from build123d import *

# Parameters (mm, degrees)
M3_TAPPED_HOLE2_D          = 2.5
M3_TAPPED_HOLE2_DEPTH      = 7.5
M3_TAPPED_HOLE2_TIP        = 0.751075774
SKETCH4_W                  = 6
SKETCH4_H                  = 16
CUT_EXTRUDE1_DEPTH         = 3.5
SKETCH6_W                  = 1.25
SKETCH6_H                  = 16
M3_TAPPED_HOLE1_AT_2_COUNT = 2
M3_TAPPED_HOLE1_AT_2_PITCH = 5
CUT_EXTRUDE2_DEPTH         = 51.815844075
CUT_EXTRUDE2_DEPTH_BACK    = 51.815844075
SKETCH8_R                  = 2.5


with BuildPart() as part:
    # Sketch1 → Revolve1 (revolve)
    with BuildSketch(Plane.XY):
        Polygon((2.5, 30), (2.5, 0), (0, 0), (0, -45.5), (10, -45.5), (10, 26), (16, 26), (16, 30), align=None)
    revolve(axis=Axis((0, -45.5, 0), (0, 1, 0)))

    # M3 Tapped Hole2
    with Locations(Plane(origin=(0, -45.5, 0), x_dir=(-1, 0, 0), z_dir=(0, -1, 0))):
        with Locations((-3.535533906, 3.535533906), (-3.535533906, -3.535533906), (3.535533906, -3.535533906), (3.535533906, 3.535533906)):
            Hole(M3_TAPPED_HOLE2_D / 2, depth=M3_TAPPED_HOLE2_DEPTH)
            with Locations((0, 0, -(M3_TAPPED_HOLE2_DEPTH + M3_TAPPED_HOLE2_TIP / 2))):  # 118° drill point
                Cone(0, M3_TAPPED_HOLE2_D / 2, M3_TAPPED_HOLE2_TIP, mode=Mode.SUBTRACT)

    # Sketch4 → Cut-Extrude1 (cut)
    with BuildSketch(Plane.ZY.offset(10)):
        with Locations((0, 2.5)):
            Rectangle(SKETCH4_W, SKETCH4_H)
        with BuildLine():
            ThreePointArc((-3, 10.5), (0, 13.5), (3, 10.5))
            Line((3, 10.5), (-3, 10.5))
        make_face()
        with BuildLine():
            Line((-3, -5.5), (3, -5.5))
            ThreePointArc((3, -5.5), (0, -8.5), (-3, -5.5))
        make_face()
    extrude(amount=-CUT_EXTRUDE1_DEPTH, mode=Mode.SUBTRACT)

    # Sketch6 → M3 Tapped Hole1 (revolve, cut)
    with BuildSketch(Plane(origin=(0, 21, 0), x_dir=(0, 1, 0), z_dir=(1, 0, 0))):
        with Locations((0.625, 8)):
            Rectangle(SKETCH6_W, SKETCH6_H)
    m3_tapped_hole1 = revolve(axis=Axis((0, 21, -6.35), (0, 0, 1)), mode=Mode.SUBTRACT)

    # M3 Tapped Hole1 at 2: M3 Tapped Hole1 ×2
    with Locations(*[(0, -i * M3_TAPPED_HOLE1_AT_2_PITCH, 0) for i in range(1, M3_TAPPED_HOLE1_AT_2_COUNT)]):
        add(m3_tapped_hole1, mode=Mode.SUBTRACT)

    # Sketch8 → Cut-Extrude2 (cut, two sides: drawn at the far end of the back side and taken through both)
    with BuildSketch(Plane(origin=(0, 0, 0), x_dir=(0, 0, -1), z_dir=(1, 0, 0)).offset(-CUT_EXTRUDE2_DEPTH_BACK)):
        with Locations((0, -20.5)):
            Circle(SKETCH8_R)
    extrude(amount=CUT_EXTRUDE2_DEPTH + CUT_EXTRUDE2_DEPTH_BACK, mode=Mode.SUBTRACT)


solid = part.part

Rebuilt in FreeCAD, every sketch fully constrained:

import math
import FreeCAD as App
import Part
import Sketcher
from FreeCAD import Vector


def add_polygon(sketch, points):
    """Adds a closed chain of lines whose ends are joined by coincident constraints."""
    first, n = sketch.GeometryCount, len(points)
    for a, b in zip(points, points[1:] + points[:1]):
        sketch.addGeometry(Part.LineSegment(App.Vector(*a, 0), App.Vector(*b, 0)), False)
    for i in range(n):
        sketch.addConstraint(Sketcher.Constraint("Coincident", first + i, 2, first + (i + 1) % n, 1))

doc = App.newDocument("Part")
params = doc.addObject("Spreadsheet::Sheet", "Params")
for row, (alias, value) in enumerate([
    ("sketch1_width", "10 mm"),
    ("sketch1_width2", "6 mm"),
    ("sketch1_height", "30 mm"),
    ("sketch1_height2", "4 mm"),
    ("sketch1_width3", "2.5 mm"),
    ("revolution_angle", "360 deg"),
    ("sketch2_diameter", "2.5 mm"),
    ("hole_diameter", "2.5 mm"),
    ("hole_depth", "7.5 mm"),
    ("sketch3_radius", "3 mm"),
    ("sketch3_width", "16 mm"),
    ("pocket1_length", "3.5 mm"),
    ("sketch4_height", "16 mm"),
    ("sketch4_width", "1.25 mm"),
    ("groove_angle", "360 deg"),
    ("linearpattern_pitch", "5 mm"),
    ("sketch5_diameter", "5 mm"),
], start=1):
    params.set(f"A{row}", alias)
    params.set(f"B{row}", "=" + value)
    params.setAlias(f"B{row}", alias)

body = doc.addObject("PartDesign::Body", "Body")

sketch1 = body.newObject("Sketcher::SketchObject", "Sketch")
sketch1.AttachmentSupport = (doc.getObject("XY_Plane"), [""])
sketch1.MapMode = "FlatFace"
add_polygon(sketch1, [(2.5, 30), (2.5, 0), (0, 0), (0, -45.5), (10, -45.5), (10, 26), (16, 26), (16, 30)])
sketch1.addConstraint(Sketcher.Constraint("Vertical", 0))
sketch1.addConstraint(Sketcher.Constraint("Horizontal", 1))
sketch1.addConstraint(Sketcher.Constraint("Vertical", 2))
sketch1.addConstraint(Sketcher.Constraint("Horizontal", 3))
sketch1.addConstraint(Sketcher.Constraint("Vertical", 4))
sketch1.addConstraint(Sketcher.Constraint("Horizontal", 5))
sketch1.addConstraint(Sketcher.Constraint("Vertical", 6))
sketch1.addConstraint(Sketcher.Constraint("Horizontal", 7))
sketch1.addConstraint(Sketcher.Constraint("Coincident", 1, 2, -1, 1))
sketch1.addConstraint(Sketcher.Constraint("DistanceX", 3, 1, 3, 2, 10.0))
sketch1.addConstraint(Sketcher.Constraint("DistanceX", 5, 1, 5, 2, 6.0))
sketch1.addConstraint(Sketcher.Constraint("DistanceY", 0, 2, 0, 1, 30.0))
sketch1.addConstraint(Sketcher.Constraint("DistanceY", 6, 1, 6, 2, 4.0))
sketch1.addConstraint(Sketcher.Constraint("DistanceX", 1, 2, 1, 1, 2.5))
sketch1.addConstraint(Sketcher.Constraint("DistanceY", 2, 2, 2, 1, 45.5))
sketch1.setExpression("Constraints[17]", "Params.sketch1_width")
sketch1.setExpression("Constraints[18]", "Params.sketch1_width2")
sketch1.setExpression("Constraints[19]", "Params.sketch1_height")
sketch1.setExpression("Constraints[20]", "Params.sketch1_height2")
sketch1.setExpression("Constraints[21]", "Params.sketch1_width3")
revolution = body.newObject("PartDesign::Revolution", "Revolution")
revolution.Profile = sketch1
revolution.ReferenceAxis = (sketch1, ["V_Axis"])
revolution.setExpression("Angle", "Params.revolution_angle")

sketch2 = body.newObject("Sketcher::SketchObject", "Sketch001")
sketch2.AttachmentSupport = (doc.getObject("XZ_Plane"), [""])
sketch2.MapMode = "FlatFace"
sketch2.AttachmentOffset = App.Placement(Vector(0, 0, 45.5), App.Rotation())
sketch2.addGeometry(Part.Circle(Vector(3.5, -3.5, 0), Vector(0, 0, 1), 1.2), False)
sketch2.addGeometry(Part.Circle(Vector(3.5, 3.5, 0), Vector(0, 0, 1), 1.2), False)
sketch2.addGeometry(Part.Circle(Vector(-3.5, 3.5, 0), Vector(0, 0, 1), 1.2), False)
sketch2.addGeometry(Part.Circle(Vector(-3.5, -3.5, 0), Vector(0, 0, 1), 1.2), False)
sketch2.addConstraint(Sketcher.Constraint("Equal", 0, 1))
sketch2.addConstraint(Sketcher.Constraint("Equal", 1, 2))
sketch2.addConstraint(Sketcher.Constraint("Equal", 2, 3))
sketch2.addConstraint(Sketcher.Constraint("Symmetric", 0, 3, 2, 3, -1, 1))
sketch2.addConstraint(Sketcher.Constraint("Symmetric", 1, 3, 3, 3, -1, 1))
sketch2.addConstraint(Sketcher.Constraint("Symmetric", 1, 3, 2, 3, -2))
sketch2.addConstraint(Sketcher.Constraint("Diameter", 0, 2.5))
sketch2.addConstraint(Sketcher.Constraint("DistanceX", -1, 1, 0, 3, 3.535534))
sketch2.addConstraint(Sketcher.Constraint("DistanceY", 0, 3, -1, 1, 3.535534))
sketch2.setExpression("Constraints[6]", "Params.sketch2_diameter")
doc.recompute()
hole = body.newObject("PartDesign::Hole", "Hole")
hole.Profile = sketch2
hole.ThreadType = "None"
hole.setExpression("Diameter", "Params.hole_diameter")
hole.DepthType = "Dimension"
hole.setExpression("Depth", "Params.hole_depth")
hole.DrillPoint = "Angled"
hole.DrillPointAngle = 118

sketch3 = body.newObject("Sketcher::SketchObject", "Sketch002")
sketch3.AttachmentSupport = (doc.getObject("YZ_Plane"), [""])
sketch3.MapMode = "FlatFace"
sketch3.AttachmentOffset = App.Placement(Vector(0, 0, -10), App.Rotation())
sketch3.addGeometry(Part.LineSegment(Vector(10.5, -3, 0), Vector(-5.5, -3, 0)), False)
sketch3.addGeometry(Part.ArcOfCircle(Part.Circle(Vector(-5.5, 0, 0), Vector(0, 0, 1), 3), math.radians(90), math.radians(270)), False)
sketch3.addGeometry(Part.LineSegment(Vector(-5.5, 3, 0), Vector(10.5, 3, 0)), False)
sketch3.addGeometry(Part.ArcOfCircle(Part.Circle(Vector(10.5, 0, 0), Vector(0, 0, 1), 3), math.radians(-90), math.radians(90)), False)
sketch3.addConstraint(Sketcher.Constraint("Tangent", 0, 2, 1, 2))
sketch3.addConstraint(Sketcher.Constraint("Tangent", 1, 1, 2, 1))
sketch3.addConstraint(Sketcher.Constraint("Tangent", 2, 2, 3, 2))
sketch3.addConstraint(Sketcher.Constraint("Tangent", 3, 1, 0, 1))
sketch3.addConstraint(Sketcher.Constraint("Horizontal", 0))
sketch3.addConstraint(Sketcher.Constraint("Horizontal", 2))
sketch3.addConstraint(Sketcher.Constraint("PointOnObject", 1, 3, -1))
sketch3.addConstraint(Sketcher.Constraint("Radius", 1, 3.0))
sketch3.addConstraint(Sketcher.Constraint("DistanceX", 0, 2, 0, 1, 16.0))
sketch3.addConstraint(Sketcher.Constraint("DistanceX", 1, 3, -1, 1, 5.5))
sketch3.setExpression("Constraints[7]", "Params.sketch3_radius")
sketch3.setExpression("Constraints[8]", "Params.sketch3_width")
pocket1 = body.newObject("PartDesign::Pocket", "Pocket")
pocket1.Profile = sketch3
pocket1.setExpression("Length", "Params.pocket1_length")
pocket1.Reversed = True

sketch4 = body.newObject("Sketcher::SketchObject", "Sketch003")
sketch4.AttachmentSupport = (doc.getObject("YZ_Plane"), [""])
sketch4.MapMode = "FlatFace"
add_polygon(sketch4, [(21, 16), (21, 0), (22.2, 0), (22.2, 16)])
sketch4.addGeometry(Part.LineSegment(Vector(21, 0, 0), Vector(21, 16, 0)), True)
sketch4.addConstraint(Sketcher.Constraint("Vertical", 0))
sketch4.addConstraint(Sketcher.Constraint("Horizontal", 1))
sketch4.addConstraint(Sketcher.Constraint("Vertical", 2))
sketch4.addConstraint(Sketcher.Constraint("Horizontal", 3))
sketch4.addConstraint(Sketcher.Constraint("Vertical", 4))
sketch4.addConstraint(Sketcher.Constraint("Coincident", 4, 1, 0, 2))
sketch4.addConstraint(Sketcher.Constraint("PointOnObject", 0, 2, -1))
sketch4.addConstraint(Sketcher.Constraint("Horizontal", 2, 2, 4, 2))
sketch4.addConstraint(Sketcher.Constraint("DistanceY", 0, 2, 0, 1, 16.0))
sketch4.addConstraint(Sketcher.Constraint("DistanceX", -1, 1, 0, 2, 21.0))
sketch4.addConstraint(Sketcher.Constraint("DistanceX", 1, 1, 1, 2, 1.25))
sketch4.setExpression("Constraints[12]", "Params.sketch4_height")
sketch4.setExpression("Constraints[14]", "Params.sketch4_width")
groove = body.newObject("PartDesign::Groove", "Groove")
groove.Profile = sketch4
groove.ReferenceAxis = (sketch4, ["Axis0"])
groove.setExpression("Angle", "Params.groove_angle")
doc.recompute()

linearpattern = body.newObject("PartDesign::LinearPattern", "LinearPattern")
linearpattern.Originals = [groove]
linearpattern.Direction = (doc.getObject("Y_Axis"), [""])
linearpattern.Mode = "offset"
linearpattern.setExpression("Offset", "Params.linearpattern_pitch")
linearpattern.Occurrences = 2
linearpattern.Reversed = True
body.Tip = linearpattern

sketch5 = body.newObject("Sketcher::SketchObject", "Sketch004")
sketch5.AttachmentSupport = (doc.getObject("YZ_Plane"), [""])
sketch5.MapMode = "FlatFace"
sketch5.addGeometry(Part.Circle(Vector(-20.5, 0, 0), Vector(0, 0, 1), 2.5), False)
sketch5.addConstraint(Sketcher.Constraint("PointOnObject", 0, 3, -1))
sketch5.addConstraint(Sketcher.Constraint("Diameter", 0, 5.0))
sketch5.addConstraint(Sketcher.Constraint("DistanceX", 0, 3, -1, 1, 20.5))
sketch5.setExpression("Constraints[1]", "Params.sketch5_diameter")
pocket2 = body.newObject("PartDesign::Pocket", "Pocket001")
pocket2.Profile = sketch5
pocket2.Type = "ThroughAll"
pocket2.Midplane = True

doc.recompute()
